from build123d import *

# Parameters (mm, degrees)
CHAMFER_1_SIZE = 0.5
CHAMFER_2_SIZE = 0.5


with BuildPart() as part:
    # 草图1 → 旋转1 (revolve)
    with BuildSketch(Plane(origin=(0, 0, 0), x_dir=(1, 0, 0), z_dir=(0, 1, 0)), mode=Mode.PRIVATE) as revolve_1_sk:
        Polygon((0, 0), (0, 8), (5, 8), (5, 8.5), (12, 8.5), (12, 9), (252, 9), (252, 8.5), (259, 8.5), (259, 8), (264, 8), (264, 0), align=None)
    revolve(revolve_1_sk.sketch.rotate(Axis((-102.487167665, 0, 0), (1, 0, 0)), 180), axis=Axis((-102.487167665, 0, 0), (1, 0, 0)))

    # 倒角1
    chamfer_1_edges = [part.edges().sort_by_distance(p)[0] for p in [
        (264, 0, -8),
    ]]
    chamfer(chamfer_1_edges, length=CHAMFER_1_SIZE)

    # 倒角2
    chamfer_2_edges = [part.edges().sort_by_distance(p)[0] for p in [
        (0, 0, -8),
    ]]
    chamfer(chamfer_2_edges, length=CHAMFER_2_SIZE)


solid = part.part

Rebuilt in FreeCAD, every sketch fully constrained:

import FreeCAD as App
import Part
import Sketcher
from FreeCAD import Vector


def edges_at(feature, points):
    """Names of the edges that pass closest to the given points."""
    edges = feature.Shape.Edges
    near = lambda p: min(range(len(edges)), key=lambda i: edges[i].distToShape(Part.Vertex(*p))[0])
    return sorted({f"Edge{near(p) + 1}" for p in points})


def add_polygon(sketch, points):
    """Adds a closed chain of lines whose ends are joined by coincident constraints."""
    first, n = sketch.GeometryCount, len(points)
    for a, b in zip(points, points[1:] + points[:1]):
        sketch.addGeometry(Part.LineSegment(App.Vector(*a, 0), App.Vector(*b, 0)), False)
    for i in range(n):
        sketch.addConstraint(Sketcher.Constraint("Coincident", first + i, 2, first + (i + 1) % n, 1))

doc = App.newDocument("Part")
body = doc.addObject("PartDesign::Body", "Body")

sketch1 = body.newObject("Sketcher::SketchObject", "Sketch")
sketch1.AttachmentSupport = (doc.getObject("XZ_Plane"), [""])
sketch1.MapMode = "FlatFace"
add_polygon(sketch1, [(0, -8), (0, 0), (264, 0), (264, -8), (259, -8), (259, -8.5), (252, -8.5), (252, -9), (12, -9), (12, -8.5), (5, -8.5), (5, -8)])
sketch1.addConstraint(Sketcher.Constraint("Vertical", 0))
sketch1.addConstraint(Sketcher.Constraint("Horizontal", 1))
sketch1.addConstraint(Sketcher.Constraint("Vertical", 2))
sketch1.addConstraint(Sketcher.Constraint("Horizontal", 3))
sketch1.addConstraint(Sketcher.Constraint("Vertical", 4))
sketch1.addConstraint(Sketcher.Constraint("Horizontal", 5))
sketch1.addConstraint(Sketcher.Constraint("Vertical", 6))
sketch1.addConstraint(Sketcher.Constraint("Horizontal", 7))
sketch1.addConstraint(Sketcher.Constraint("Vertical", 8))
sketch1.addConstraint(Sketcher.Constraint("Horizontal", 9))
sketch1.addConstraint(Sketcher.Constraint("Vertical", 10))
sketch1.addConstraint(Sketcher.Constraint("Horizontal", 11))
sketch1.addConstraint(Sketcher.Constraint("Coincident", 0, 2, -1, 1))
sketch1.addConstraint(Sketcher.Constraint("Horizontal", 5, 2, 8, 2))
sketch1.addConstraint(Sketcher.Constraint("Horizontal", 3, 2, 10, 2))
sketch1.addConstraint(Sketcher.Constraint("Equal", 5, 9))
sketch1.addConstraint(Sketcher.Constraint("Equal", 3, 11))
sketch1.addConstraint(Sketcher.Constraint("Equal", 4, 6))
sketch1.addConstraint(Sketcher.Constraint("DistanceX", 1, 1, 1, 2, 264.0))
sketch1.addConstraint(Sketcher.Constraint("DistanceX", 3, 2, 3, 1, 5.0))
sketch1.addConstraint(Sketcher.Constraint("DistanceX", 5, 2, 5, 1, 7.0))
sketch1.addConstraint(Sketcher.Constraint("DistanceY", 0, 1, 0, 2, 8.0))
sketch1.addConstraint(Sketcher.Constraint("DistanceY", 4, 2, 4, 1, 0.5))
revolution = body.newObject("PartDesign::Revolution", "Revolution")
revolution.Profile = sketch1
revolution.ReferenceAxis = (sketch1, ["H_Axis"])
revolution.Angle = 360
doc.recompute()

chamfer = body.newObject("PartDesign::Chamfer", "Chamfer")
chamfer.Base = (revolution, edges_at(revolution, [(264, 0, -8)]))
chamfer.Size = 0.5
doc.recompute()

chamfer2 = body.newObject("PartDesign::Chamfer", "Chamfer001")
chamfer2.Base = (chamfer, edges_at(chamfer, [(0, 0, -8)]))
chamfer2.Size = 0.5

doc.recompute()
